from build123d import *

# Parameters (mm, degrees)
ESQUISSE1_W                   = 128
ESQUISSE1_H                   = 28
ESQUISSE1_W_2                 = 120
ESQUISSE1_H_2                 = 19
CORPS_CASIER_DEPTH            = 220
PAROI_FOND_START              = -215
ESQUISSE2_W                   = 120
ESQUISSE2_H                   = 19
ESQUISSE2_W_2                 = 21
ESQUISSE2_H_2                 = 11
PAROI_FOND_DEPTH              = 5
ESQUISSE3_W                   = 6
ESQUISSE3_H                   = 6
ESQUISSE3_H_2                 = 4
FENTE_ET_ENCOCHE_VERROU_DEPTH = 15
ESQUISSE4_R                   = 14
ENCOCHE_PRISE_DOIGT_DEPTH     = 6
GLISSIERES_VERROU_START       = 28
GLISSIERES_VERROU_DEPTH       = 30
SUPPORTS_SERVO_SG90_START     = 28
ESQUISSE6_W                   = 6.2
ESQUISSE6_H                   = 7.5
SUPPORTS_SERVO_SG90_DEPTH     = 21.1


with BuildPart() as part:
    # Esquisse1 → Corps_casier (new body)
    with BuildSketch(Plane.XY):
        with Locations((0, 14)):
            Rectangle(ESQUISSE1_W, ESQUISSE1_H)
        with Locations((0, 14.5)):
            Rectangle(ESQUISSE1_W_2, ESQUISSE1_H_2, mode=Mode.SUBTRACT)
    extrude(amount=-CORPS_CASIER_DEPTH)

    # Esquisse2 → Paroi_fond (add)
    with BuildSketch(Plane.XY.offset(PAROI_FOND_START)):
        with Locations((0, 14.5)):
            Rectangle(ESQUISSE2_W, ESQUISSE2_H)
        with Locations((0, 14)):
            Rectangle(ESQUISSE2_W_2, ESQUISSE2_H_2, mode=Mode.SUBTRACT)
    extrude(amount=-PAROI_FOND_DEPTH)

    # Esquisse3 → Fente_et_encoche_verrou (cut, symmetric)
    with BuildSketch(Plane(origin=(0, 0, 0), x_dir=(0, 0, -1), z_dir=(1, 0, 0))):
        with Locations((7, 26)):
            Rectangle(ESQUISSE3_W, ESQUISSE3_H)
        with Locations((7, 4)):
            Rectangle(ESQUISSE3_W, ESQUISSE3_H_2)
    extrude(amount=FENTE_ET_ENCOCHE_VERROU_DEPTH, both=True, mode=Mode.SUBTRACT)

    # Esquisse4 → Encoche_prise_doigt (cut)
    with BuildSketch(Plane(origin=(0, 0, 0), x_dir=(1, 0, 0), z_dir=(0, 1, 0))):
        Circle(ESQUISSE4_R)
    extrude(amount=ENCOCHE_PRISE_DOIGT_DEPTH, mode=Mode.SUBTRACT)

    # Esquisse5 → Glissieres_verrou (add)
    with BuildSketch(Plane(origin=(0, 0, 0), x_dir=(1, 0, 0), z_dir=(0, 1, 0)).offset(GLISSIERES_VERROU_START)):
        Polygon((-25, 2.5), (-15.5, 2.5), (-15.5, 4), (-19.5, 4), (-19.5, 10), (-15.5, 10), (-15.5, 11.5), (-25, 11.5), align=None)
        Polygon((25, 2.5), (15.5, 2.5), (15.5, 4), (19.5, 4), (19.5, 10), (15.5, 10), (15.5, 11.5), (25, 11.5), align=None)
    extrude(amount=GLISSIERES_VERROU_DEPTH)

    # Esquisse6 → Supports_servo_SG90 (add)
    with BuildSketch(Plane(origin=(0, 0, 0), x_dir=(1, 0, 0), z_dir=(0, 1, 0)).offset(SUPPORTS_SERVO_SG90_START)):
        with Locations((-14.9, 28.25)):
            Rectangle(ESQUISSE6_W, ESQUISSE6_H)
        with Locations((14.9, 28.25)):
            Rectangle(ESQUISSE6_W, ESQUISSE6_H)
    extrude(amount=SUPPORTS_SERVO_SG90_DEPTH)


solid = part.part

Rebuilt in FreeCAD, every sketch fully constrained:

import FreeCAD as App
import Part
import Sketcher
from FreeCAD import Vector


def add_polygon(sketch, points):
    """Adds a closed chain of lines whose ends are joined by coincident constraints."""
    first, n = sketch.GeometryCount, len(points)
    for a, b in zip(points, points[1:] + points[:1]):
        sketch.addGeometry(Part.LineSegment(App.Vector(*a, 0), App.Vector(*b, 0)), False)
    for i in range(n):
        sketch.addConstraint(Sketcher.Constraint("Coincident", first + i, 2, first + (i + 1) % n, 1))

doc = App.newDocument("Part")
body = doc.addObject("PartDesign::Body", "Body")

sketch1 = body.newObject("Sketcher::SketchObject", "Sketch")
sketch1.AttachmentSupport = (doc.getObject("XY_Plane"), [""])
sketch1.MapMode = "FlatFace"
add_polygon(sketch1, [(-64, 28), (-64, 0), (64, 0), (64, 28)])
add_polygon(sketch1, [(60, 5), (-60, 5), (-60, 24), (60, 24)])
sketch1.addConstraint(Sketcher.Constraint("Vertical", 0))
sketch1.addConstraint(Sketcher.Constraint("Horizontal", 1))
sketch1.addConstraint(Sketcher.Constraint("Vertical", 2))
sketch1.addConstraint(Sketcher.Constraint("Horizontal", 3))
sketch1.addConstraint(Sketcher.Constraint("Horizontal", 4))
sketch1.addConstraint(Sketcher.Constraint("Vertical", 5))
sketch1.addConstraint(Sketcher.Constraint("Horizontal", 6))
sketch1.addConstraint(Sketcher.Constraint("Vertical", 7))
sketch1.addConstraint(Sketcher.Constraint("Symmetric", 0, 2, 1, 2, -1, 1))
sketch1.addConstraint(Sketcher.Constraint("DistanceX", 1, 1, 1, 2, 128.0))
sketch1.addConstraint(Sketcher.Constraint("DistanceX", 4, 2, 4, 1, 120.0))
sketch1.addConstraint(Sketcher.Constraint("DistanceY", 0, 2, 0, 1, 28.0))
sketch1.addConstraint(Sketcher.Constraint("DistanceY", 5, 1, 5, 2, 19.0))
sketch1.addConstraint(Sketcher.Constraint("DistanceX", 4, 2, -1, 1, 60.0))
sketch1.addConstraint(Sketcher.Constraint("DistanceY", -1, 1, 4, 2, 5.0))
pad1 = body.newObject("PartDesign::Pad", "Pad")
pad1.Profile = sketch1
pad1.Length = 220
pad1.Reversed = True

sketch2 = body.newObject("Sketcher::SketchObject", "Sketch001")
sketch2.AttachmentSupport = (doc.getObject("XY_Plane"), [""])
sketch2.MapMode = "FlatFace"
sketch2.AttachmentOffset = App.Placement(Vector(0, 0, -215), App.Rotation())
add_polygon(sketch2, [(-60, 24), (-60, 5), (60, 5), (60, 24)])
add_polygon(sketch2, [(10, 8), (-10, 8), (-10, 20), (10, 20)])
sketch2.addConstraint(Sketcher.Constraint("Vertical", 0))
sketch2.addConstraint(Sketcher.Constraint("Horizontal", 1))
sketch2.addConstraint(Sketcher.Constraint("Vertical", 2))
sketch2.addConstraint(Sketcher.Constraint("Horizontal", 3))
sketch2.addConstraint(Sketcher.Constraint("Horizontal", 4))
sketch2.addConstraint(Sketcher.Constraint("Vertical", 5))
sketch2.addConstraint(Sketcher.Constraint("Horizontal", 6))
sketch2.addConstraint(Sketcher.Constraint("Vertical", 7))
sketch2.addConstraint(Sketcher.Constraint("DistanceX", 1, 1, 1, 2, 120.0))
sketch2.addConstraint(Sketcher.Constraint("DistanceX", 4, 2, 4, 1, 21.0))
sketch2.addConstraint(Sketcher.Constraint("DistanceY", 0, 2, 0, 1, 19.0))
sketch2.addConstraint(Sketcher.Constraint("DistanceY", 5, 1, 5, 2, 11.0))
sketch2.addConstraint(Sketcher.Constraint("DistanceX", 0, 2, -1, 1, 60.0))
sketch2.addConstraint(Sketcher.Constraint("DistanceY", -1, 1, 0, 2, 5.0))
sketch2.addConstraint(Sketcher.Constraint("DistanceX", 4, 2, -1, 1, 10.5))
sketch2.addConstraint(Sketcher.Constraint("DistanceY", -1, 1, 4, 2, 8.5))
pad2 = body.newObject("PartDesign::Pad", "Pad001")
pad2.Profile = sketch2
pad2.Length = 5
pad2.Reversed = True

sketch3 = body.newObject("Sketcher::SketchObject", "Sketch002")
sketch3.AttachmentSupport = (doc.getObject("YZ_Plane"), [""])
sketch3.MapMode = "FlatFace"
add_polygon(sketch3, [(29, -4), (23, -4), (23, -10), (29, -10)])
add_polygon(sketch3, [(6, -4), (2, -4), (2, -10), (6, -10)])
sketch3.addConstraint(Sketcher.Constraint("Horizontal", 0))
sketch3.addConstraint(Sketcher.Constraint("Vertical", 1))
sketch3.addConstraint(Sketcher.Constraint("Horizontal", 2))
sketch3.addConstraint(Sketcher.Constraint("Vertical", 3))
sketch3.addConstraint(Sketcher.Constraint("Horizontal", 4))
sketch3.addConstraint(Sketcher.Constraint("Vertical", 5))
sketch3.addConstraint(Sketcher.Constraint("Horizontal", 6))
sketch3.addConstraint(Sketcher.Constraint("Vertical", 7))
sketch3.addConstraint(Sketcher.Constraint("Horizontal", 3, 2, 4, 2))
sketch3.addConstraint(Sketcher.Constraint("Horizontal", 2, 2, 5, 2))
sketch3.addConstraint(Sketcher.Constraint("Equal", 2, 1))
sketch3.addConstraint(Sketcher.Constraint("DistanceX", 0, 2, 0, 1, 6.0))
sketch3.addConstraint(Sketcher.Constraint("DistanceX", 4, 2, 4, 1, 4.0))
sketch3.addConstraint(Sketcher.Constraint("DistanceX", -1, 1, 0, 2, 23.0))
sketch3.addConstraint(Sketcher.Constraint("DistanceY", 0, 2, -1, 1, 4.0))
sketch3.addConstraint(Sketcher.Constraint("DistanceX", -1, 1, 4, 2, 2.0))
pocket1 = body.newObject("PartDesign::Pocket", "Pocket")
pocket1.Profile = sketch3
pocket1.Length = 30
pocket1.Midplane = True

sketch4 = body.newObject("Sketcher::SketchObject", "Sketch003")
sketch4.AttachmentSupport = (doc.getObject("XZ_Plane"), [""])
sketch4.MapMode = "FlatFace"
sketch4.addGeometry(Part.Circle(Vector(0, 0, 0), Vector(0, 0, 1), 14), False)
sketch4.addConstraint(Sketcher.Constraint("Coincident", 0, 3, -1, 1))
sketch4.addConstraint(Sketcher.Constraint("Diameter", 0, 28.0))
pocket2 = body.newObject("PartDesign::Pocket", "Pocket001")
pocket2.Profile = sketch4
pocket2.Length = 6

sketch5 = body.newObject("Sketcher::SketchObject", "Sketch004")
sketch5.AttachmentSupport = (doc.getObject("XZ_Plane"), [""])
sketch5.MapMode = "FlatFace"
sketch5.AttachmentOffset = App.Placement(Vector(0, 0, -28), App.Rotation())
add_polygon(sketch5, [(-25, -2.5), (-15.5, -2.5), (-15.5, -4), (-19.5, -4), (-19.5, -10), (-15.5, -10), (-15.5, -11.5), (-25, -11.5)])
add_polygon(sketch5, [(15.5, -2.5), (25, -2.5), (25, -11.5), (15.5, -11.5), (15.5, -10), (19.5, -10), (19.5, -4), (15.5, -4)])
sketch5.addConstraint(Sketcher.Constraint("Horizontal", 0))
sketch5.addConstraint(Sketcher.Constraint("Vertical", 1))
sketch5.addConstraint(Sketcher.Constraint("Horizontal", 2))
sketch5.addConstraint(Sketcher.Constraint("Vertical", 3))
sketch5.addConstraint(Sketcher.Constraint("Horizontal", 4))
sketch5.addConstraint(Sketcher.Constraint("Vertical", 5))
sketch5.addConstraint(Sketcher.Constraint("Horizontal", 6))
sketch5.addConstraint(Sketcher.Constraint("Vertical", 7))
sketch5.addConstraint(Sketcher.Constraint("Horizontal", 8))
sketch5.addConstraint(Sketcher.Constraint("Vertical", 9))
sketch5.addConstraint(Sketcher.Constraint("Horizontal", 10))
sketch5.addConstraint(Sketcher.Constraint("Vertical", 11))
sketch5.addConstraint(Sketcher.Constraint("Horizontal", 12))
sketch5.addConstraint(Sketcher.Constraint("Vertical", 13))
sketch5.addConstraint(Sketcher.Constraint("Horizontal", 14))
sketch5.addConstraint(Sketcher.Constraint("Vertical", 15))
sketch5.addConstraint(Sketcher.Constraint("Symmetric", 7, 2, 8, 2, -2))
sketch5.addConstraint(Sketcher.Constraint("Symmetric", 5, 2, 10, 2, -2))
sketch5.addConstraint(Sketcher.Constraint("Symmetric", 3, 2, 12, 2, -2))
sketch5.addConstraint(Sketcher.Constraint("Symmetric", 1, 2, 14, 2, -2))
sketch5.addConstraint(Sketcher.Constraint("Vertical", 1, 2, 4, 2))
sketch5.addConstraint(Sketcher.Constraint("Equal", 1, 5))
sketch5.addConstraint(Sketcher.Constraint("DistanceX", 2, 2, 2, 1, 4.0))
sketch5.addConstraint(Sketcher.Constraint("DistanceY", 3, 2, 3, 1, 6.0))
sketch5.addConstraint(Sketcher.Constraint("DistanceY", 7, 1, 7, 2, 9.0))
sketch5.addConstraint(Sketcher.Constraint("DistanceX", 0, 1, 0, 2, 9.5))
sketch5.addConstraint(Sketcher.Constraint("DistanceY", 1, 2, -1, 1, 4.0))
sketch5.addConstraint(Sketcher.Constraint("DistanceX", 6, 2, -1, 1, 25.0))
pad3 = body.newObject("PartDesign::Pad", "Pad002")
pad3.Profile = sketch5
pad3.Length = 30
pad3.Reversed = True

sketch6 = body.newObject("Sketcher::SketchObject", "Sketch005")
sketch6.AttachmentSupport = (doc.getObject("XZ_Plane"), [""])
sketch6.MapMode = "FlatFace"
sketch6.AttachmentOffset = App.Placement(Vector(0, 0, -28), App.Rotation())
add_polygon(sketch6, [(-18, -32), (-18, -24), (-12, -24), (-12, -32)])
add_polygon(sketch6, [(12, -32), (12, -24), (18, -24), (18, -32)])
sketch6.addConstraint(Sketcher.Constraint("Vertical", 0))
sketch6.addConstraint(Sketcher.Constraint("Horizontal", 1))
sketch6.addConstraint(Sketcher.Constraint("Vertical", 2))
sketch6.addConstraint(Sketcher.Constraint("Horizontal", 3))
sketch6.addConstraint(Sketcher.Constraint("Vertical", 4))
sketch6.addConstraint(Sketcher.Constraint("Horizontal", 5))
sketch6.addConstraint(Sketcher.Constraint("Vertical", 6))
sketch6.addConstraint(Sketcher.Constraint("Horizontal", 7))
sketch6.addConstraint(Sketcher.Constraint("Symmetric", 1, 2, 4, 2, -2))
sketch6.addConstraint(Sketcher.Constraint("Symmetric", 3, 2, 6, 2, -2))
sketch6.addConstraint(Sketcher.Constraint("DistanceX", 1, 1, 1, 2, 6.2))
sketch6.addConstraint(Sketcher.Constraint("DistanceY", 0, 1, 0, 2, 7.5))
sketch6.addConstraint(Sketcher.Constraint("DistanceX", 0, 2, -1, 1, 18.0))
sketch6.addConstraint(Sketcher.Constraint("DistanceY", 2, 2, -1, 1, 32.0))
pad4 = body.newObject("PartDesign::Pad", "Pad003")
pad4.Profile = sketch6
pad4.Length = 21.1
pad4.Reversed = True

doc.recompute()
